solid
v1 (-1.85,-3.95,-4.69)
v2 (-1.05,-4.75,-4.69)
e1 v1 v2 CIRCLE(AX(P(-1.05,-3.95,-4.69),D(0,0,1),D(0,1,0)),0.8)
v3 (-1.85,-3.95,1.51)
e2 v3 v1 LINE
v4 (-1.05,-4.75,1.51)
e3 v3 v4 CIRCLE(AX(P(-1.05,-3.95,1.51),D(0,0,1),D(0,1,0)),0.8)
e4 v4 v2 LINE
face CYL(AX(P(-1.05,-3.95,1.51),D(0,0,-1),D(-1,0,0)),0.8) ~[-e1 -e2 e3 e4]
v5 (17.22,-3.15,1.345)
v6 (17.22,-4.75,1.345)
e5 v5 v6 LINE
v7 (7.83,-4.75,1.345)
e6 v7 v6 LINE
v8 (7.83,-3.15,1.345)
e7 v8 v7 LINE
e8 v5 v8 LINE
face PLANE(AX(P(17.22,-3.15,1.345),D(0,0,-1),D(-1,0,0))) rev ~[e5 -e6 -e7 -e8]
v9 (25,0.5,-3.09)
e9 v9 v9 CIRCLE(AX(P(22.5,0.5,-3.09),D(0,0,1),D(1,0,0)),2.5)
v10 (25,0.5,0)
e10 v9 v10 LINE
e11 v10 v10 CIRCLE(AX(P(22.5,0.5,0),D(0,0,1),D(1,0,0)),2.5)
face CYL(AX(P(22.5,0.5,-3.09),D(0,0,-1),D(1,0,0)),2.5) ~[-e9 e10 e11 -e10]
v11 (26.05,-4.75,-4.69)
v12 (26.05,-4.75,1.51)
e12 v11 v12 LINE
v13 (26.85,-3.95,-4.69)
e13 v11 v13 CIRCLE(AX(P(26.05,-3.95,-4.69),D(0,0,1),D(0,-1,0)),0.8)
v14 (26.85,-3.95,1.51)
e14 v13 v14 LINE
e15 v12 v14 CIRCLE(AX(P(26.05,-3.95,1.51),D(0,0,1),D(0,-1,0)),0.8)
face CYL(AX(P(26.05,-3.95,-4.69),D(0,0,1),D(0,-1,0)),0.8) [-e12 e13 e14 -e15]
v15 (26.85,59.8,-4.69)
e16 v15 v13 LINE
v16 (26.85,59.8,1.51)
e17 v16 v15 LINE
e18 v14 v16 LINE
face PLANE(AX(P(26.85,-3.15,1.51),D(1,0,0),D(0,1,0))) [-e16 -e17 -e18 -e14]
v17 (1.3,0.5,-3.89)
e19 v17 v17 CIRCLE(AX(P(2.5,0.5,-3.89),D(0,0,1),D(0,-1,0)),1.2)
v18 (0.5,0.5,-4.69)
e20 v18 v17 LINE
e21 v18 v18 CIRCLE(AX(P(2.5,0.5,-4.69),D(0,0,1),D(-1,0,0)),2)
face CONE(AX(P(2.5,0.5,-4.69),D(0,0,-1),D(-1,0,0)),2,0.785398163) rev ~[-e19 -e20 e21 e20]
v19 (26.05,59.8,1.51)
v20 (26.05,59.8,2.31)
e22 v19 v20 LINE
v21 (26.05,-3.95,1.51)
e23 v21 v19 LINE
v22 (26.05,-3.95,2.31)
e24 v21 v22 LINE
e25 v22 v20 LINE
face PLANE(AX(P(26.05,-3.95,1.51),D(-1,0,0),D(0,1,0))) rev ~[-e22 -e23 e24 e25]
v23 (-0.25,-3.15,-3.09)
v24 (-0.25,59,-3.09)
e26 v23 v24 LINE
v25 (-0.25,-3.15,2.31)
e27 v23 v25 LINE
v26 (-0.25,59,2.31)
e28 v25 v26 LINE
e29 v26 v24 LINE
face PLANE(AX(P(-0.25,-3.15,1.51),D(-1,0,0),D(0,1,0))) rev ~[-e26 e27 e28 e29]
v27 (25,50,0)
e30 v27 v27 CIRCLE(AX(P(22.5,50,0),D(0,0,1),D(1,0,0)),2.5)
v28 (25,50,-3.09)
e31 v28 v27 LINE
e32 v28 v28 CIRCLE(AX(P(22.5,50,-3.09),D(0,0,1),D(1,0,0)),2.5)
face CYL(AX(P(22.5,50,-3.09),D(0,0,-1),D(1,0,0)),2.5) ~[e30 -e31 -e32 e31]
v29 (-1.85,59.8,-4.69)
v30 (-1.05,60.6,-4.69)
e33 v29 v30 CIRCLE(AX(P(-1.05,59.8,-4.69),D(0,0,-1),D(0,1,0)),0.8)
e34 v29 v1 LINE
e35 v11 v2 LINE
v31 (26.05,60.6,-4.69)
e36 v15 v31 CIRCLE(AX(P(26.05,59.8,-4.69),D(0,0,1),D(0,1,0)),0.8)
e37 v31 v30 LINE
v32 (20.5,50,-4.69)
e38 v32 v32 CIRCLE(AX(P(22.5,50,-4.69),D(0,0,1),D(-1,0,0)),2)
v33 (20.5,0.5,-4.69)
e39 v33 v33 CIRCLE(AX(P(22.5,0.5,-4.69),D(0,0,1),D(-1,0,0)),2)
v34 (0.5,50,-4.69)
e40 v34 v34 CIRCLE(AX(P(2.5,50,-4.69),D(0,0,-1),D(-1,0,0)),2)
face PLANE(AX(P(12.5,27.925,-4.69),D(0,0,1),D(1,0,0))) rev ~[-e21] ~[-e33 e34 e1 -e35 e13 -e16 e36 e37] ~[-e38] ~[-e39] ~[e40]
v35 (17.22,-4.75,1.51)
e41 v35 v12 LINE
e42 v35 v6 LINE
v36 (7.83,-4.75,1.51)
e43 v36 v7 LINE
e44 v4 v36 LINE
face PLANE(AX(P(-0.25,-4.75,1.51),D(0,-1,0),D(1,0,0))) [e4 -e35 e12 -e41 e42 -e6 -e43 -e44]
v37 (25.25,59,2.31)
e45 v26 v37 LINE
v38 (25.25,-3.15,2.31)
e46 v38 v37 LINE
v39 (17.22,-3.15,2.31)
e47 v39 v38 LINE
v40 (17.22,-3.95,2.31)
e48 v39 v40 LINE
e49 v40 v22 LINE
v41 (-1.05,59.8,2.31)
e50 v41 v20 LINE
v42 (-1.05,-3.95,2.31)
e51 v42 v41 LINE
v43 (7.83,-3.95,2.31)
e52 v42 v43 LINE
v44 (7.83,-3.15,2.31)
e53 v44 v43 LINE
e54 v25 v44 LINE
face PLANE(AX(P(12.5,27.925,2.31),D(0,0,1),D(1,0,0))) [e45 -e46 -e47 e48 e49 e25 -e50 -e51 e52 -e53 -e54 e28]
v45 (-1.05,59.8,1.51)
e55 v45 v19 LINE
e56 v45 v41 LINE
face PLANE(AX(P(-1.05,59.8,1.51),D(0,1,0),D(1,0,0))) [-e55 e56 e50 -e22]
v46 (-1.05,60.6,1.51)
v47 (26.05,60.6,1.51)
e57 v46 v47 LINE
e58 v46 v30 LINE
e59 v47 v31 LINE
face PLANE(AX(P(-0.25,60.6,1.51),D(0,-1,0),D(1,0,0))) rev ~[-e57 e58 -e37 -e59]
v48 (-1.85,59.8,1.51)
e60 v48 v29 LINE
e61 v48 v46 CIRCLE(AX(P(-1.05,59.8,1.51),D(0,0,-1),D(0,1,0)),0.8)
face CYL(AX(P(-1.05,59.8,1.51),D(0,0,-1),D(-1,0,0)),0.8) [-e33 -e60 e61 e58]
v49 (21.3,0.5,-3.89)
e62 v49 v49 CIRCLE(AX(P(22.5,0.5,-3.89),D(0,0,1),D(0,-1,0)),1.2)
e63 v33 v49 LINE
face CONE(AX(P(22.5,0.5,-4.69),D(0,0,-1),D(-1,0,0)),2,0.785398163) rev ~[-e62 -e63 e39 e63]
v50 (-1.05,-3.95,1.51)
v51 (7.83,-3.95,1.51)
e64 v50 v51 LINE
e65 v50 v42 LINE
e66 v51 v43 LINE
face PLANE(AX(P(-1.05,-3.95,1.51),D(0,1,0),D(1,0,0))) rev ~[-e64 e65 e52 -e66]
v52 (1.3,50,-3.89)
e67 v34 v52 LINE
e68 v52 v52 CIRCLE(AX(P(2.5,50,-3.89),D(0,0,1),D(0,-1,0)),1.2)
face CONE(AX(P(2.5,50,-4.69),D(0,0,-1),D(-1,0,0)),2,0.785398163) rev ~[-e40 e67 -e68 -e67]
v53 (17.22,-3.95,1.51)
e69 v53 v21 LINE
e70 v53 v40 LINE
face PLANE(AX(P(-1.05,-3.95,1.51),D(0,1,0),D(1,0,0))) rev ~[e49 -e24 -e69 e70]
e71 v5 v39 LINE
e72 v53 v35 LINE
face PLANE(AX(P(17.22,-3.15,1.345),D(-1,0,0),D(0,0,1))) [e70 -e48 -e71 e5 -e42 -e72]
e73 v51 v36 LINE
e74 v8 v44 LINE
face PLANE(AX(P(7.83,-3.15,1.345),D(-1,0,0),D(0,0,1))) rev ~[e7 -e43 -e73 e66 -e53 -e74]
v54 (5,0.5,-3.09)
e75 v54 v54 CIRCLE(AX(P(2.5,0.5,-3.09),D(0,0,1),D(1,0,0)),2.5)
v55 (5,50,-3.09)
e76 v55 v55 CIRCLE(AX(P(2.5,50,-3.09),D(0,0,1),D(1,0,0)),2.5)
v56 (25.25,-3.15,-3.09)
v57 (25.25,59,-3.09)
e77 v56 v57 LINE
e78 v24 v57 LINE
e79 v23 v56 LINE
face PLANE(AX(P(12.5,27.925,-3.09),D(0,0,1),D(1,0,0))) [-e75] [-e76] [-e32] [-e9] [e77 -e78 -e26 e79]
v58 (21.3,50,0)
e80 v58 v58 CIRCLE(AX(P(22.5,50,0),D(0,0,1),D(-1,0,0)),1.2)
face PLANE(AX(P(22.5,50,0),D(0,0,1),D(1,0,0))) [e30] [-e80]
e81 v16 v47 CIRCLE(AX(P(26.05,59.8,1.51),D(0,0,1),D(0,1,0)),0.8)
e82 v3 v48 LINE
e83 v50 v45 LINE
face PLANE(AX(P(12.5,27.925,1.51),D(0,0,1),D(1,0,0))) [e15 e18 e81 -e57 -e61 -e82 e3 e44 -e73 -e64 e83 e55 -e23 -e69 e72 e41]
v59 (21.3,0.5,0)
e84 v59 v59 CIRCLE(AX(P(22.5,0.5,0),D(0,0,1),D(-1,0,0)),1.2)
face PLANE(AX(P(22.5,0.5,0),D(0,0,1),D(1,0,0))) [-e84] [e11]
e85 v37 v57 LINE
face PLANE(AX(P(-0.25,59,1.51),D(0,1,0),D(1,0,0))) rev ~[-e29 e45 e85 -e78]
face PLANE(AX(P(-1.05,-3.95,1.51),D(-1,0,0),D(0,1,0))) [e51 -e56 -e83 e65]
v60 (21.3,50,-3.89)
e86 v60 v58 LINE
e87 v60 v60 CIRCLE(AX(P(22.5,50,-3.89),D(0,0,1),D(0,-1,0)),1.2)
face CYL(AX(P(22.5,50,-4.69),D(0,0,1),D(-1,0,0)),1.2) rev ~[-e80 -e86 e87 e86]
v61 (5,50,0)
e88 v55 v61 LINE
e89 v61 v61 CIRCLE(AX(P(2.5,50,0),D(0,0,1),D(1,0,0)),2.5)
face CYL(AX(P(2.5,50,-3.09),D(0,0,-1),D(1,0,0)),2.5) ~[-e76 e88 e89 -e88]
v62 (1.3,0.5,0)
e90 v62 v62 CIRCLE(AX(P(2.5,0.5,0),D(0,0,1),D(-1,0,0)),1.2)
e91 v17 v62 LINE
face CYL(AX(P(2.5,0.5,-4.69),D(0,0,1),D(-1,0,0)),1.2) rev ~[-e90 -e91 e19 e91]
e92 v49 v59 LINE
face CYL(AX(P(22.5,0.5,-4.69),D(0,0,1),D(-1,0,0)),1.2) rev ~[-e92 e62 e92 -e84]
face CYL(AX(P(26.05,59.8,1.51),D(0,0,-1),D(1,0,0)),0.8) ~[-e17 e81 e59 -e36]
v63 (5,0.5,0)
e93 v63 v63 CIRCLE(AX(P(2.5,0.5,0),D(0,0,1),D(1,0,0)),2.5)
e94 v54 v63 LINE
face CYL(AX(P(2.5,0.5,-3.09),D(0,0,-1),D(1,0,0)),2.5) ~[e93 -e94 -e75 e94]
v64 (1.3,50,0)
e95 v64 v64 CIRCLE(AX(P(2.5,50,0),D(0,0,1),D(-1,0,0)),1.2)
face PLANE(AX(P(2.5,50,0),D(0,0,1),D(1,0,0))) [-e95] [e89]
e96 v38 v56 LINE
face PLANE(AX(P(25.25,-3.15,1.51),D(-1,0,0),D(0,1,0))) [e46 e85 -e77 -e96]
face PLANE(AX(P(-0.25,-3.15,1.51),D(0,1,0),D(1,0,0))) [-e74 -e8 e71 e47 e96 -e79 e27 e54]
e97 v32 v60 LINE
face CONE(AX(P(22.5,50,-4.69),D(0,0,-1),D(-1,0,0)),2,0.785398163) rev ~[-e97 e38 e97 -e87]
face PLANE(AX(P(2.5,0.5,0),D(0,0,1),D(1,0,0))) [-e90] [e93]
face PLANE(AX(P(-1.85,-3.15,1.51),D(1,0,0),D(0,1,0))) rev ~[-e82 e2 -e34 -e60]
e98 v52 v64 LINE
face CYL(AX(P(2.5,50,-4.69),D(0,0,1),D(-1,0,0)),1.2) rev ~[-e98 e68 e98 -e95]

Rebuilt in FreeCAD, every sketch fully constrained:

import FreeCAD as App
import Part
import Sketcher

V = App.Vector


def edges_at(feature, points):
    """Names of the edges that pass closest to the given points."""
    edges = feature.Shape.Edges
    near = lambda p: min(range(len(edges)), key=lambda i: edges[i].distToShape(Part.Vertex(*p))[0])
    return sorted({f"Edge{near(p) + 1}" for p in points})


def faces_at(feature, points):
    """Names of the faces that lie closest to the given points."""
    faces = feature.Shape.Faces
    near = lambda p: min(range(len(faces)), key=lambda i: faces[i].distToShape(Part.Vertex(*p))[0])
    return sorted({f"Face{near(p) + 1}" for p in points})


def add_polygon(sketch, points):
    """Adds a closed chain of lines whose ends are joined by coincident constraints."""
    first, n = sketch.GeometryCount, len(points)
    for a, b in zip(points, points[1:] + points[:1]):
        sketch.addGeometry(Part.LineSegment(App.Vector(*a, 0), App.Vector(*b, 0)), False)
    for i in range(n):
        sketch.addConstraint(Sketcher.Constraint("Coincident", first + i, 2, first + (i + 1) % n, 1))

doc = App.newDocument("Part")
body = doc.addObject("PartDesign::Body", "Body")

# Sketch on XY plane
sketch1 = body.newObject("Sketcher::SketchObject", "Sketch")
sketch1.AttachmentSupport = (doc.getObject("XY_Plane"), [""])
sketch1.MapMode = "FlatFace"
sketch1.AttachmentOffset = App.Placement(V(0, 0, 1.51), App.Rotation())
add_polygon(sketch1, [(0, 59), (0, -3), (25, -3), (25, 59)])  # lines 0-3
sketch1.addConstraint(Sketcher.Constraint("Vertical", 0))
sketch1.addConstraint(Sketcher.Constraint("Horizontal", 1))
sketch1.addConstraint(Sketcher.Constraint("Vertical", 2))
sketch1.addConstraint(Sketcher.Constraint("Horizontal", 3))
sketch1.addConstraint(Sketcher.Constraint("DistanceX", 1, 1, 1, 2, 25.5))
sketch1.addConstraint(Sketcher.Constraint("DistanceY", -1, 1, 2, 2, 59.0))
sketch1.addConstraint(Sketcher.Constraint("DistanceY", 0, 2, 0, 1, 62.15))
sketch1.addConstraint(Sketcher.Constraint("DistanceX", 0, 2, -1, 1, 0.25))
pad1 = body.newObject("PartDesign::Pad", "Pad")
pad1.Profile = sketch1
pad1.Length = 4.6
pad1.Reversed = True
doc.recompute()

thickness = body.newObject("PartDesign::Thickness", "Thickness")
thickness.Base = (pad1, faces_at(pad1, [(12.5, 27.925, 1.51)]))
thickness.Value = 1.6
thickness.Reversed = False
thickness.Join = "Intersection"

# Sketch on XY plane
sketch2 = body.newObject("Sketcher::SketchObject", "Sketch001")
sketch2.AttachmentSupport = (doc.getObject("XY_Plane"), [""])
sketch2.MapMode = "FlatFace"
sketch2.AttachmentOffset = App.Placement(V(0, 0, -3.09), App.Rotation())
sketch2.addGeometry(Part.Circle(V(2.5, 0.5, 0), V(0, 0, 1), 2.5), False)
sketch2.addGeometry(Part.Circle(V(22.5, 0.5, 0), V(0, 0, 1), 2.5), False)
sketch2.addGeometry(Part.Circle(V(2.5, 50, 0), V(0, 0, 1), 2.5), False)
sketch2.addGeometry(Part.Circle(V(22.5, 50, 0), V(0, 0, 1), 2.5), False)
sketch2.addConstraint(Sketcher.Constraint("Equal", 0, 1))
sketch2.addConstraint(Sketcher.Constraint("Equal", 1, 2))
sketch2.addConstraint(Sketcher.Constraint("Equal", 2, 3))
sketch2.addConstraint(Sketcher.Constraint("Horizontal", 0, 3, 1, 3))
sketch2.addConstraint(Sketcher.Constraint("Horizontal", 2, 3, 3, 3))
sketch2.addConstraint(Sketcher.Constraint("Vertical", 0, 3, 2, 3))
sketch2.addConstraint(Sketcher.Constraint("Vertical", 1, 3, 3, 3))
sketch2.addConstraint(Sketcher.Constraint("Diameter", 0, 5.0))
sketch2.addConstraint(Sketcher.Constraint("DistanceY", -1, 1, 2, 3, 50.0))
sketch2.addConstraint(Sketcher.Constraint("DistanceX", 0, 3, 1, 3, 20.0))
sketch2.addConstraint(Sketcher.Constraint("DistanceX", -1, 1, 0, 3, 2.5))
sketch2.addConstraint(Sketcher.Constraint("DistanceY", -1, 1, 0, 3, 0.5))
pad2 = body.newObject("PartDesign::Pad", "Pad001")
pad2.Profile = sketch2
pad2.Length = 3.09

# Sketch on XY plane
sketch3 = body.newObject("Sketcher::SketchObject", "Sketch002")
sketch3.AttachmentSupport = (doc.getObject("XY_Plane"), [""])
sketch3.MapMode = "FlatFace"
sketch3.addGeometry(Part.Circle(V(2.5, 50, 0), V(0, 0, 1), 1.6), False)
sketch3.addGeometry(Part.Circle(V(22.5, 50, 0), V(0, 0, 1), 1.6), False)
sketch3.addGeometry(Part.Circle(V(2.5, 0.5, 0), V(0, 0, 1), 1.6), False)
sketch3.addGeometry(Part.Circle(V(22.5, 0.5, 0), V(0, 0, 1), 1.6), False)
sketch3.addConstraint(Sketcher.Constraint("Equal", 0, 1))
sketch3.addConstraint(Sketcher.Constraint("Equal", 1, 2))
sketch3.addConstraint(Sketcher.Constraint("Equal", 2, 3))
sketch3.addConstraint(Sketcher.Constraint("Horizontal", 0, 3, 1, 3))
sketch3.addConstraint(Sketcher.Constraint("Horizontal", 2, 3, 3, 3))
sketch3.addConstraint(Sketcher.Constraint("Vertical", 0, 3, 2, 3))
sketch3.addConstraint(Sketcher.Constraint("Vertical", 1, 3, 3, 3))
sketch3.addConstraint(Sketcher.Constraint("Diameter", 0, 3.2))
sketch3.addConstraint(Sketcher.Constraint("DistanceY", -1, 1, 0, 3, 50.0))
sketch3.addConstraint(Sketcher.Constraint("DistanceX", 0, 3, 1, 3, 20.0))
sketch3.addConstraint(Sketcher.Constraint("DistanceX", -1, 1, 0, 3, 2.5))
sketch3.addConstraint(Sketcher.Constraint("DistanceY", -1, 1, 2, 3, 0.5))
pocket1 = body.newObject("PartDesign::Pocket", "Pocket")
pocket1.Profile = sketch3
pocket1.Length = 3
doc.recompute()

fillet = body.newObject("PartDesign::Fillet", "Fillet")
fillet.Base = (pocket1, edges_at(pocket1, [
    (-1.85, -4.75, -1.59),
    (26.85, -4.75, -1.59),
    (-1.85, 60.6, -1.59),
    (26.85, 60.6, -1.59),
]))
fillet.Radius = 0.8

# Sketch on XY plane
sketch4 = body.newObject("Sketcher::SketchObject", "Sketch003")
sketch4.AttachmentSupport = (doc.getObject("XY_Plane"), [""])
sketch4.MapMode = "FlatFace"
sketch4.AttachmentOffset = App.Placement(V(0, 0, 1.51), App.Rotation())
add_polygon(sketch4, [(-1, 60), (-1, -4), (26, -4), (26, 60)])  # lines 0-3
add_polygon(sketch4, [(25, -3), (0, -3), (0, 59), (25, 59)])  # lines 4-7
sketch4.addConstraint(Sketcher.Constraint("Vertical", 0))
sketch4.addConstraint(Sketcher.Constraint("Horizontal", 1))
sketch4.addConstraint(Sketcher.Constraint("Vertical", 2))
sketch4.addConstraint(Sketcher.Constraint("Horizontal", 3))
sketch4.addConstraint(Sketcher.Constraint("Horizontal", 4))
sketch4.addConstraint(Sketcher.Constraint("Vertical", 5))
sketch4.addConstraint(Sketcher.Constraint("Horizontal", 6))
sketch4.addConstraint(Sketcher.Constraint("Vertical", 7))
sketch4.addConstraint(Sketcher.Constraint("DistanceX", 1, 1, 1, 2, 27.1))
sketch4.addConstraint(Sketcher.Constraint("DistanceX", 4, 2, 4, 1, 25.5))
sketch4.addConstraint(Sketcher.Constraint("DistanceY", -1, 1, 5, 2, 59.0))
sketch4.addConstraint(Sketcher.Constraint("DistanceY", 0, 2, 0, 1, 63.75))
sketch4.addConstraint(Sketcher.Constraint("DistanceY", 5, 1, 5, 2, 62.15))
sketch4.addConstraint(Sketcher.Constraint("DistanceY", -1, 1, 2, 2, 59.8))
sketch4.addConstraint(Sketcher.Constraint("DistanceX", 0, 2, 4, 2, 0.8))
sketch4.addConstraint(Sketcher.Constraint("DistanceX", 0, 2, -1, 1, 1.05))
pad3 = body.newObject("PartDesign::Pad", "Pad002")
pad3.Profile = sketch4
pad3.Length = 0.8

# Sketch on XZ plane
sketch5 = body.newObject("Sketcher::SketchObject", "Sketch004")
sketch5.AttachmentSupport = (doc.getObject("XZ_Plane"), [""])
sketch5.MapMode = "FlatFace"
sketch5.AttachmentOffset = App.Placement(V(0, 0, 3.15), App.Rotation())
add_polygon(sketch5, [(17.2, 2.3), (17.2, 1.3), (7.8, 1.3), (7.8, 2.3)])  # lines 0-3
sketch5.addConstraint(Sketcher.Constraint("Vertical", 0))
sketch5.addConstraint(Sketcher.Constraint("Horizontal", 1))
sketch5.addConstraint(Sketcher.Constraint("Vertical", 2))
sketch5.addConstraint(Sketcher.Constraint("Horizontal", 3))
sketch5.addConstraint(Sketcher.Constraint("DistanceX", 1, 2, 1, 1, 9.39))
sketch5.addConstraint(Sketcher.Constraint("DistanceY", 0, 2, 0, 1, 0.965))
sketch5.addConstraint(Sketcher.Constraint("DistanceX", -1, 1, 0, 2, 17.22))
sketch5.addConstraint(Sketcher.Constraint("DistanceY", -1, 1, 2, 2, 2.31))
pocket2 = body.newObject("PartDesign::Pocket", "Pocket001")
pocket2.Profile = sketch5
pocket2.Length = 5
pocket2.Reversed = True

# Sketch on XY plane
sketch6 = body.newObject("Sketcher::SketchObject", "Sketch005")
sketch6.AttachmentSupport = (doc.getObject("XY_Plane"), [""])
sketch6.MapMode = "FlatFace"
sketch6.AttachmentOffset = App.Placement(V(0, 0, -3.09), App.Rotation())
sketch6.addGeometry(Part.Circle(V(2.5, 50, 0), V(0, 0, 1), 2.5), False)
sketch6.addGeometry(Part.Circle(V(22.5, 50, 0), V(0, 0, 1), 2.5), False)
sketch6.addGeometry(Part.Circle(V(2.5, 0.5, 0), V(0, 0, 1), 2.5), False)
sketch6.addGeometry(Part.Circle(V(22.5, 0.5, 0), V(0, 0, 1), 2.5), False)
sketch6.addConstraint(Sketcher.Constraint("Equal", 0, 1))
sketch6.addConstraint(Sketcher.Constraint("Equal", 1, 2))
sketch6.addConstraint(Sketcher.Constraint("Equal", 2, 3))
sketch6.addConstraint(Sketcher.Constraint("Horizontal", 0, 3, 1, 3))
sketch6.addConstraint(Sketcher.Constraint("Horizontal", 2, 3, 3, 3))
sketch6.addConstraint(Sketcher.Constraint("Vertical", 0, 3, 2, 3))
sketch6.addConstraint(Sketcher.Constraint("Vertical", 1, 3, 3, 3))
sketch6.addConstraint(Sketcher.Constraint("Diameter", 0, 5.0))
sketch6.addConstraint(Sketcher.Constraint("DistanceY", -1, 1, 0, 3, 50.0))
sketch6.addConstraint(Sketcher.Constraint("DistanceX", 0, 3, 1, 3, 20.0))
sketch6.addConstraint(Sketcher.Constraint("DistanceX", -1, 1, 0, 3, 2.5))
sketch6.addConstraint(Sketcher.Constraint("DistanceY", -1, 1, 2, 3, 0.5))
pad4 = body.newObject("PartDesign::Pad", "Pad003")
pad4.Profile = sketch6
pad4.Length = 3.09

# Sketch on XY plane
sketch7 = body.newObject("Sketcher::SketchObject", "Sketch006")
sketch7.AttachmentSupport = (doc.getObject("XY_Plane"), [""])
sketch7.MapMode = "FlatFace"
sketch7.AttachmentOffset = App.Placement(V(0, 0, -4.69), App.Rotation())
sketch7.addGeometry(Part.Circle(V(2.5, 0.5, 0), V(0, 0, 1), 1.2), False)
sketch7.addGeometry(Part.Circle(V(22.5, 0.5, 0), V(0, 0, 1), 1.2), False)
sketch7.addGeometry(Part.Circle(V(2.5, 50, 0), V(0, 0, 1), 1.2), False)
sketch7.addGeometry(Part.Circle(V(22.5, 50, 0), V(0, 0, 1), 1.2), False)
sketch7.addConstraint(Sketcher.Constraint("Equal", 0, 1))
sketch7.addConstraint(Sketcher.Constraint("Equal", 1, 2))
sketch7.addConstraint(Sketcher.Constraint("Equal", 2, 3))
sketch7.addConstraint(Sketcher.Constraint("Horizontal", 0, 3, 1, 3))
sketch7.addConstraint(Sketcher.Constraint("Horizontal", 2, 3, 3, 3))
sketch7.addConstraint(Sketcher.Constraint("Vertical", 0, 3, 2, 3))
sketch7.addConstraint(Sketcher.Constraint("Vertical", 1, 3, 3, 3))
sketch7.addConstraint(Sketcher.Constraint("Diameter", 0, 2.4))
sketch7.addConstraint(Sketcher.Constraint("DistanceY", -1, 1, 2, 3, 50.0))
sketch7.addConstraint(Sketcher.Constraint("DistanceX", 0, 3, 1, 3, 20.0))
sketch7.addConstraint(Sketcher.Constraint("DistanceX", -1, 1, 0, 3, 2.5))
sketch7.addConstraint(Sketcher.Constraint("DistanceY", -1, 1, 0, 3, 0.5))
doc.recompute()
hole = body.newObject("PartDesign::Hole", "Hole")
hole.Profile = sketch7
hole.ThreadType = "None"
hole.Diameter = 2.4
hole.DepthType = "Dimension"
hole.Depth = 25
hole.DrillPoint = "Flat"
hole.HoleCutType = "Countersink"
hole.HoleCutDiameter = 4
hole.HoleCutCountersinkAngle = 90
hole.Reversed = True

doc.recompute()
